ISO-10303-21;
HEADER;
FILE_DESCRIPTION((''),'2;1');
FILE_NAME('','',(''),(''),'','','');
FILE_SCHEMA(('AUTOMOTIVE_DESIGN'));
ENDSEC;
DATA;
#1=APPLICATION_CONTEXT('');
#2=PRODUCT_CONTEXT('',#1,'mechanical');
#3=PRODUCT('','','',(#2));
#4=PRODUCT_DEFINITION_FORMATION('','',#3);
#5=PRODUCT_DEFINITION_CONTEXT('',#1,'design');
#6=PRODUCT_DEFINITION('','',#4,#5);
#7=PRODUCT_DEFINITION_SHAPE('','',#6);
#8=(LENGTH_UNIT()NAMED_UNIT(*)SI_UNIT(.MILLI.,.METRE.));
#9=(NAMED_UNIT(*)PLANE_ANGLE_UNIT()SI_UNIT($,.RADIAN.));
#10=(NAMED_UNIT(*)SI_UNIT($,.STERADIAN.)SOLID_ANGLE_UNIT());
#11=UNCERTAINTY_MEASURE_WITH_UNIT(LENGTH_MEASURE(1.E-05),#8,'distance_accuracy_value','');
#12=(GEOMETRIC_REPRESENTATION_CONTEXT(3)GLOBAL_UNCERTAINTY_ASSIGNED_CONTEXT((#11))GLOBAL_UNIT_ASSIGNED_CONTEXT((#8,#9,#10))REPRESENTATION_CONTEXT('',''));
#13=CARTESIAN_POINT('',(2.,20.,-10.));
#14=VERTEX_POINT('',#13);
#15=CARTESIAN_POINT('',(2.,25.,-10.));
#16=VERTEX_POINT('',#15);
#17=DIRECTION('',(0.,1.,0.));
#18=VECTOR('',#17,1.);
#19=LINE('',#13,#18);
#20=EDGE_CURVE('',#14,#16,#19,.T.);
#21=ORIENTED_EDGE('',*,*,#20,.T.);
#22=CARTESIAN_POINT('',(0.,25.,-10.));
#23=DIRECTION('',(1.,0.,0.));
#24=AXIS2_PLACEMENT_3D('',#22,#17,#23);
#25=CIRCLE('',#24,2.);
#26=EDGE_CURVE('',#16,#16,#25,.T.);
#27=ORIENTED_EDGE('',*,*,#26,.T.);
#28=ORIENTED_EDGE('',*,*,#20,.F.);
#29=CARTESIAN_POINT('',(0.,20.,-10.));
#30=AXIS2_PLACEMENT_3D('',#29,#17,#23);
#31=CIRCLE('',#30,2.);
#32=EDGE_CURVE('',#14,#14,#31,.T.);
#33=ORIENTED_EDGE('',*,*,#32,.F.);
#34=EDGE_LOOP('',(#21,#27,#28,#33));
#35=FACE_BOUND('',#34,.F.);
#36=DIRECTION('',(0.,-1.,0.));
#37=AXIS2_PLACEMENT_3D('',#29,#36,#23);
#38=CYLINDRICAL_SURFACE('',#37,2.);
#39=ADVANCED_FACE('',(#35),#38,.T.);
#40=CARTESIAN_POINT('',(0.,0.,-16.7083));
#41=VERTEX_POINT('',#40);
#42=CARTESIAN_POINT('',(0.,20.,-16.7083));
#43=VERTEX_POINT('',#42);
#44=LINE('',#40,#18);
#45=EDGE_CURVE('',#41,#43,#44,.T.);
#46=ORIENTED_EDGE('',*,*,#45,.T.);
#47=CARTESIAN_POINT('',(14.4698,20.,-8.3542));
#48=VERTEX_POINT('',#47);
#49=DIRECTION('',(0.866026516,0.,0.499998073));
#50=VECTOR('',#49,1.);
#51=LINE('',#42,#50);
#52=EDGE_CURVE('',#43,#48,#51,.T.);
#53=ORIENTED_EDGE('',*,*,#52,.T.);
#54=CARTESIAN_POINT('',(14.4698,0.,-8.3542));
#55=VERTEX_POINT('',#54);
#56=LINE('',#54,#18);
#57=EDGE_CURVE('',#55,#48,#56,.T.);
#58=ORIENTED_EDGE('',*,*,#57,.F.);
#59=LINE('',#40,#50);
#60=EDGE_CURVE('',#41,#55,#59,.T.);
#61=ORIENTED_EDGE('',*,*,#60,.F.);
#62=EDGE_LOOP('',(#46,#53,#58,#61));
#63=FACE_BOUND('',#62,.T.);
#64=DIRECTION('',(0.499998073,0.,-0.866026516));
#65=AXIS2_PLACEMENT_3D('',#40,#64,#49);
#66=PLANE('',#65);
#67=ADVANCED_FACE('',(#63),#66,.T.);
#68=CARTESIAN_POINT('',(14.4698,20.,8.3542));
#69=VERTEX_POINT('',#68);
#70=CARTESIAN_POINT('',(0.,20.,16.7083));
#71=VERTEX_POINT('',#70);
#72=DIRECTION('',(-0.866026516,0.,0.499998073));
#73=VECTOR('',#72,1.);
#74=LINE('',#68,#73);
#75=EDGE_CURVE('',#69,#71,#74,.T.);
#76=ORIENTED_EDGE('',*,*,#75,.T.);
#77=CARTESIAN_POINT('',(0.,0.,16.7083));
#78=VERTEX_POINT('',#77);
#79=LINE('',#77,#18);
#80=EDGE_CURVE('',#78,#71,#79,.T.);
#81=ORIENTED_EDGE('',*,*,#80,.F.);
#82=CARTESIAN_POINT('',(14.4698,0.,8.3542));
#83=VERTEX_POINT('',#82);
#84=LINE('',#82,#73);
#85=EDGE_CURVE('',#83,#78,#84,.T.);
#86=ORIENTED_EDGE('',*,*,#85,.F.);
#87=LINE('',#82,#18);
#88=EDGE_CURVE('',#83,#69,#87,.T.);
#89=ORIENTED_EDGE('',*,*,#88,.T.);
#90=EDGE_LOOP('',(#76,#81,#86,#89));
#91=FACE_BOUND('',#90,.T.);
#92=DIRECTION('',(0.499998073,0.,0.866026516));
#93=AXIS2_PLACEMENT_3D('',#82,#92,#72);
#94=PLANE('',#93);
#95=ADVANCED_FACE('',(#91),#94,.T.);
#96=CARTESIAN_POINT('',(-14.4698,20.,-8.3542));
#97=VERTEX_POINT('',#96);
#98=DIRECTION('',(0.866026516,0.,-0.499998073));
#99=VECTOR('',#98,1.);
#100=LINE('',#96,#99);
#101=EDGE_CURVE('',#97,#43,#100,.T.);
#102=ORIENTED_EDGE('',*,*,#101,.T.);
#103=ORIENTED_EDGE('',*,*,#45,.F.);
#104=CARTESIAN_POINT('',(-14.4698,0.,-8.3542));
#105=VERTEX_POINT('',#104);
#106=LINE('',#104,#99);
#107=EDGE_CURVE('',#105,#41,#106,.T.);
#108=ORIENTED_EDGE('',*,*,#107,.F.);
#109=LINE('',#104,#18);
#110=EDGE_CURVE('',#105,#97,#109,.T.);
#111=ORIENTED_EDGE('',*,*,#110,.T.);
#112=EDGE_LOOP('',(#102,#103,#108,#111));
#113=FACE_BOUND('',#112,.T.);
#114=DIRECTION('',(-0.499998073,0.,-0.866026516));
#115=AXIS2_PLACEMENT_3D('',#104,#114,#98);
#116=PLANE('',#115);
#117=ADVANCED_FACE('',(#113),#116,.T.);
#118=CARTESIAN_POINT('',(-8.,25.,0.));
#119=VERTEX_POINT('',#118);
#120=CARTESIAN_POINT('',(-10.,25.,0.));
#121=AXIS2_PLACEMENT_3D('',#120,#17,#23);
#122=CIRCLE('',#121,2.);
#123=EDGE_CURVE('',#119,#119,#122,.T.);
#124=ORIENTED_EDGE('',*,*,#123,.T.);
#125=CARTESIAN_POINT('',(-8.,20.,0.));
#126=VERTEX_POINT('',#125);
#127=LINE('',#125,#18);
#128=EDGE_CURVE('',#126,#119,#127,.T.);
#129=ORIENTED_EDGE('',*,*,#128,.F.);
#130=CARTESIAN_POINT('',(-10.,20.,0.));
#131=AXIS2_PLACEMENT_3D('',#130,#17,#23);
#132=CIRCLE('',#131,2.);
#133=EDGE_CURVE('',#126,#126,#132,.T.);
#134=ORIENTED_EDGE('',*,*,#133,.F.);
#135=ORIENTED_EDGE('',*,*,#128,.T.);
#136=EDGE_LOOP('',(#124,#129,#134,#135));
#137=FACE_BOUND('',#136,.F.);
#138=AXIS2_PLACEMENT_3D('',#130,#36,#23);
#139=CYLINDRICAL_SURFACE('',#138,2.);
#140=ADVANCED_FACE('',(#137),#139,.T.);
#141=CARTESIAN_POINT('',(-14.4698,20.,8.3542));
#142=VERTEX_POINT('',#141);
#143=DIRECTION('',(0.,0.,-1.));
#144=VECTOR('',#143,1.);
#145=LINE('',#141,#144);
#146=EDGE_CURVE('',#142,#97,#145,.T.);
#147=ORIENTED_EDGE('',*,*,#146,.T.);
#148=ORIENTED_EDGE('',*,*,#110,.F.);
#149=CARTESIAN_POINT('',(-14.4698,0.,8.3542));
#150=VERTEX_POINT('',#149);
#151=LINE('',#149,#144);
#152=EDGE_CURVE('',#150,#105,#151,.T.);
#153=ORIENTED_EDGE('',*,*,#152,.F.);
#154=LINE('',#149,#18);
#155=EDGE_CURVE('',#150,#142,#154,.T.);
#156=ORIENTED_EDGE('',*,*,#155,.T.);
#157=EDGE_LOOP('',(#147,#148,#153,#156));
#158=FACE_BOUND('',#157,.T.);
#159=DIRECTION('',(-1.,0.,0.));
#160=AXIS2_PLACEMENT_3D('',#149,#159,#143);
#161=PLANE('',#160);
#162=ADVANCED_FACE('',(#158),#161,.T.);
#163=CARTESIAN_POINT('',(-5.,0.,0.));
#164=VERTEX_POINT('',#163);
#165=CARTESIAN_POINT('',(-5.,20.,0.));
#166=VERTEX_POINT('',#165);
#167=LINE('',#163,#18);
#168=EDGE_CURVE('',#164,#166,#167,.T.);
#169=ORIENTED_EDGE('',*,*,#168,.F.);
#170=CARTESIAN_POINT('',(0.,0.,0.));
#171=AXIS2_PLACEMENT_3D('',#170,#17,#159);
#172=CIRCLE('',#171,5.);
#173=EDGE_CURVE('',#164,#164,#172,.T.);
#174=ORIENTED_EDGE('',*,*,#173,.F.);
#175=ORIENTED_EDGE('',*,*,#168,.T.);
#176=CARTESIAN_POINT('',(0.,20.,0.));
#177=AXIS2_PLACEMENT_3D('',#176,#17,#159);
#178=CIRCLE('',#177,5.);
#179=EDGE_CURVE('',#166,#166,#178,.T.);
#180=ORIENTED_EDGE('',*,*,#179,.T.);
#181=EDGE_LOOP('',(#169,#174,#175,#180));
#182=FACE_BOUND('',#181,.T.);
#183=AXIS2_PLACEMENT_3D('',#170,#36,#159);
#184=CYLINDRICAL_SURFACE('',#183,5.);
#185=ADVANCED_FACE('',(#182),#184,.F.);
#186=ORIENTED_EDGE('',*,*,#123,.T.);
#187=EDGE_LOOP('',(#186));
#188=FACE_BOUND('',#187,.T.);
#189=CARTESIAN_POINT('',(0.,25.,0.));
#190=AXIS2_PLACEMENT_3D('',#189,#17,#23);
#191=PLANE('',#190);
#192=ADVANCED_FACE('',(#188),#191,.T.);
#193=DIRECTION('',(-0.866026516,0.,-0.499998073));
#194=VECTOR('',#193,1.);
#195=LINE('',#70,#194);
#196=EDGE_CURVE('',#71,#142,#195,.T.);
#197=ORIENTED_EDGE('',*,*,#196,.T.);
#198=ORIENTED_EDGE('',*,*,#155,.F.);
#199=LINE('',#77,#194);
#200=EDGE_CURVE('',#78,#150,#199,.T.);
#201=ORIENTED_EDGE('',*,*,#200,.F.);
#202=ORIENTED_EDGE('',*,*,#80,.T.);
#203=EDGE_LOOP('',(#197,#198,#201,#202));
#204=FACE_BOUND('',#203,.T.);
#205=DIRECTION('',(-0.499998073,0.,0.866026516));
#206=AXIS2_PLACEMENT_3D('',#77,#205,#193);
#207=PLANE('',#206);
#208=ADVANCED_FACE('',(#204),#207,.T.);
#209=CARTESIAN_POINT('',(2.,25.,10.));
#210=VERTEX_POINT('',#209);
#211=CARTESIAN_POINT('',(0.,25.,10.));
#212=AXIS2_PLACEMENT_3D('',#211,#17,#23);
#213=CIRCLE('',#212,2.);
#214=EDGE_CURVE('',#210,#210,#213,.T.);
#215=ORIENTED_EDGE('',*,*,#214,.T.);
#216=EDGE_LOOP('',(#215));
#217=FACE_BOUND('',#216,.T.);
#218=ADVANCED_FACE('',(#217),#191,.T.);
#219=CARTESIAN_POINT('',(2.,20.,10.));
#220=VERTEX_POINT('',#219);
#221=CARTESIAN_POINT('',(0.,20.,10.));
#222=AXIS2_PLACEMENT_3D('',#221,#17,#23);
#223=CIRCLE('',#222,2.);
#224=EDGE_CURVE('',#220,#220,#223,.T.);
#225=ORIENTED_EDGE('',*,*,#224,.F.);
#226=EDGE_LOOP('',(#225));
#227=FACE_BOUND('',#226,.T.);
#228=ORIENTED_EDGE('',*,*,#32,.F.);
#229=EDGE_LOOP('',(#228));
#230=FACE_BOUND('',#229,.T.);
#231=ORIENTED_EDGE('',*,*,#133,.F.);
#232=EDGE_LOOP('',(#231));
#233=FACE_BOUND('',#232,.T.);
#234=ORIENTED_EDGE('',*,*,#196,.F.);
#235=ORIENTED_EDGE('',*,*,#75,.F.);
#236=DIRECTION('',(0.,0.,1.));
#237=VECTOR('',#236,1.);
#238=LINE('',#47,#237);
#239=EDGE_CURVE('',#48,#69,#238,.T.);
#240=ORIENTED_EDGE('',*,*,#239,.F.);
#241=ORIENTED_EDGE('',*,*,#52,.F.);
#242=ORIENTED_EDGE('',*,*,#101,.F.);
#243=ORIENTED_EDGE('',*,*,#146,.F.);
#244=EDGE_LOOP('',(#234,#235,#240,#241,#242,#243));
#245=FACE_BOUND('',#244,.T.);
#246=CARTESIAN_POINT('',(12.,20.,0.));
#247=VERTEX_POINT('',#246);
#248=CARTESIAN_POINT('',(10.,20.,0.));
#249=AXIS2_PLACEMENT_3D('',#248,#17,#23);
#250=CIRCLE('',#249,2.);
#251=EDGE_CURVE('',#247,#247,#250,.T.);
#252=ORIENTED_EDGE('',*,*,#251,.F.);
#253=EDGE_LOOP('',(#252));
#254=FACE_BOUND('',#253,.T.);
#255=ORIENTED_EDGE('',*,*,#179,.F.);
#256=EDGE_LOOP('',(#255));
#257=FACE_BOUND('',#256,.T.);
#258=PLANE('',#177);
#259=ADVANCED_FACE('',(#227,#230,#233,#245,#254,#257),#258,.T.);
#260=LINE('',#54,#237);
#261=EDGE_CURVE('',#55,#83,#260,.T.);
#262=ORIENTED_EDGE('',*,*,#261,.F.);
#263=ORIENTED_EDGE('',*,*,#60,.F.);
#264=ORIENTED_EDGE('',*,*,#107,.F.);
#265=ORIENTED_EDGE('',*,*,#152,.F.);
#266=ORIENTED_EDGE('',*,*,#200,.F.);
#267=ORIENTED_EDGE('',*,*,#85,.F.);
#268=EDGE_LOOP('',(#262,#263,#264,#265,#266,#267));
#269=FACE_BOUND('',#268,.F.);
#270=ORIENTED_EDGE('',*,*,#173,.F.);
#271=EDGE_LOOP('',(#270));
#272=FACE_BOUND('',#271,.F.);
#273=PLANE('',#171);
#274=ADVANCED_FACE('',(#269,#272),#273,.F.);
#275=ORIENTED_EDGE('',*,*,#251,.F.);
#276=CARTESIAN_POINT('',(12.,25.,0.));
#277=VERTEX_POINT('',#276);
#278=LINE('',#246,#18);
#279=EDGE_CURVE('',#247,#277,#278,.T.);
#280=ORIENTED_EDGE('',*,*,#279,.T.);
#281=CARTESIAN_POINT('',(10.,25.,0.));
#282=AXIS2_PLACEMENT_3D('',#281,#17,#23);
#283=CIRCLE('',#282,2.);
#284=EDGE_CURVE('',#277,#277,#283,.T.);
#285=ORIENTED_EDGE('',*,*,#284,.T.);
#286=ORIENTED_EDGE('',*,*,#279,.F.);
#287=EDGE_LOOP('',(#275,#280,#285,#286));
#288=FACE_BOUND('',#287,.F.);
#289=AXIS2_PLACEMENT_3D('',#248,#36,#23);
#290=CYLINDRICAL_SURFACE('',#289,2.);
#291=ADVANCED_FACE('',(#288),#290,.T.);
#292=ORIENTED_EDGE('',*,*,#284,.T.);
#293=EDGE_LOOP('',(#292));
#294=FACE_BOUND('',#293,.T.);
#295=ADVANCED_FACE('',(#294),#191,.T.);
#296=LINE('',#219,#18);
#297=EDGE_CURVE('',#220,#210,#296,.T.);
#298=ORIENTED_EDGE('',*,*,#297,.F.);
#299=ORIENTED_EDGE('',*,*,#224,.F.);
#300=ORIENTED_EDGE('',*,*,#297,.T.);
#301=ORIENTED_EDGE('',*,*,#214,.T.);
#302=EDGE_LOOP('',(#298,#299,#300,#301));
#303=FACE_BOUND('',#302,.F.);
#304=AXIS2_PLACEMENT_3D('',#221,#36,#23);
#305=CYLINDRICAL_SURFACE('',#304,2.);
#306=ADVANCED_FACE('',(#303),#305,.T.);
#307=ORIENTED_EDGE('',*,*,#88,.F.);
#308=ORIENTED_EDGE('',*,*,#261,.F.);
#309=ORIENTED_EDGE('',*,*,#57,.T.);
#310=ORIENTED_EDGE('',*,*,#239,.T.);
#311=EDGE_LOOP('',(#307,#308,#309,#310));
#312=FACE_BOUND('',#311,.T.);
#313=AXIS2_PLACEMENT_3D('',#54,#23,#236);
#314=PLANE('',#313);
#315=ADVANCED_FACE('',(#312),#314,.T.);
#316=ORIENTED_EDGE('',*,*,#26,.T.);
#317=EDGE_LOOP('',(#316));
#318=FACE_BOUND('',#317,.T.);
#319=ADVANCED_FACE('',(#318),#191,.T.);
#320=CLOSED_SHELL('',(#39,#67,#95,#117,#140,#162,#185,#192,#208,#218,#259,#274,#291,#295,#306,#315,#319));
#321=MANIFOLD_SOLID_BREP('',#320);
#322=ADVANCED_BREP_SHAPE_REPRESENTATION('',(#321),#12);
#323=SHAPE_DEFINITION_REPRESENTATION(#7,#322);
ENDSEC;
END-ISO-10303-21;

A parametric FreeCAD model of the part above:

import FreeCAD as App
import Part
import Sketcher
Q = App.Units.Quantity

doc = App.newDocument("Part")
body = doc.addObject("PartDesign::Body", "Body")

# Sketch on XZ plane
sketch1 = body.newObject("Sketcher::SketchObject", "Sketch")
sketch1.AttachmentSupport = (doc.getObject("XZ_Plane"), [""])
sketch1.MapMode = "FlatFace"
sketch1.addGeometry([
    Part.LineSegment(App.Vector(14, -8, 0), App.Vector(0, -17, 0)),  # 0
    Part.LineSegment(App.Vector(0, -17, 0), App.Vector(-14, -8, 0)),  # 1
    Part.LineSegment(App.Vector(-14, -8, 0), App.Vector(-14, 8, 0)),  # 2
    Part.LineSegment(App.Vector(-14, 8, 0), App.Vector(0, 17, 0)),  # 3
    Part.LineSegment(App.Vector(0, 17, 0), App.Vector(14, 8, 0)),  # 4
    Part.LineSegment(App.Vector(14, 8, 0), App.Vector(14, -8, 0)),  # 5
    Part.Circle(App.Vector(0, 0, 0), App.Vector(0, 0, 1), 5),  # 6
], False)
sketch1.addConstraint([
    Sketcher.Constraint("Coincident", 0, 2, 1, 1),
    Sketcher.Constraint("Coincident", 1, 2, 2, 1),
    Sketcher.Constraint("Coincident", 2, 2, 3, 1),
    Sketcher.Constraint("Coincident", 3, 2, 4, 1),
    Sketcher.Constraint("Coincident", 4, 2, 5, 1),
    Sketcher.Constraint("Coincident", 5, 2, 0, 1),
    Sketcher.Constraint("Vertical", 2),
    Sketcher.Constraint("Vertical", 5),
    Sketcher.Constraint("Coincident", 6, 3, -1, 1),
    Sketcher.Constraint("Symmetric", 0, 2, 3, 2, -1, 1),
    Sketcher.Constraint("Symmetric", 1, 2, 4, 2, -1, 1),
    Sketcher.Constraint("PointOnObject", 0, 2, -2),
    Sketcher.Constraint("Parallel", 0, 3),
    Sketcher.Constraint("Horizontal", 2, 2, 4, 2),
    Sketcher.Constraint("Diameter", 6, Q("10 mm")),
    Sketcher.Constraint("Angle", 0, Q("-150.0001 deg")),
    Sketcher.Constraint("DistanceY", 2, 1, 2, 2, Q("16.7084 mm")),
    Sketcher.Constraint("DistanceY", 0, 2, 1, 2, Q("8.354 mm")),
])
pad1 = body.newObject("PartDesign::Pad", "Pad")
pad1.Profile = sketch1
pad1.Length = 20
pad1.Reversed = True

# Sketch on XZ plane
sketch2 = body.newObject("Sketcher::SketchObject", "Sketch001")
sketch2.AttachmentSupport = (doc.getObject("XZ_Plane"), [""])
sketch2.MapMode = "FlatFace"
sketch2.AttachmentOffset = App.Placement(App.Vector(0, 0, -20), App.Rotation())
sketch2.addGeometry([
    Part.Circle(App.Vector(-10, 0, 0), App.Vector(0, 0, 1), 2),
    Part.Circle(App.Vector(0, -10, 0), App.Vector(0, 0, 1), 2),
    Part.Circle(App.Vector(0, 10, 0), App.Vector(0, 0, 1), 2),
    Part.Circle(App.Vector(10, 0, 0), App.Vector(0, 0, 1), 2),
], False)
sketch2.addConstraint([
    Sketcher.Constraint("Equal", 0, 1),
    Sketcher.Constraint("Equal", 1, 2),
    Sketcher.Constraint("Equal", 2, 3),
    Sketcher.Constraint("Symmetric", 1, 3, 2, 3, -1, 1),
    Sketcher.Constraint("Symmetric", 0, 3, 3, 3, -1, 1),
    Sketcher.Constraint("PointOnObject", 0, 3, -1),
    Sketcher.Constraint("PointOnObject", 1, 3, -2),
    Sketcher.Constraint("Diameter", 0, Q("4 mm")),
    Sketcher.Constraint("DistanceX", 0, 3, -1, 1, Q("10 mm")),
    Sketcher.Constraint("DistanceY", 1, 3, -1, 1, Q("10 mm")),
])
pad2 = body.newObject("PartDesign::Pad", "Pad001")
pad2.Profile = sketch2
pad2.Length = 5
pad2.Reversed = True

doc.recompute()
